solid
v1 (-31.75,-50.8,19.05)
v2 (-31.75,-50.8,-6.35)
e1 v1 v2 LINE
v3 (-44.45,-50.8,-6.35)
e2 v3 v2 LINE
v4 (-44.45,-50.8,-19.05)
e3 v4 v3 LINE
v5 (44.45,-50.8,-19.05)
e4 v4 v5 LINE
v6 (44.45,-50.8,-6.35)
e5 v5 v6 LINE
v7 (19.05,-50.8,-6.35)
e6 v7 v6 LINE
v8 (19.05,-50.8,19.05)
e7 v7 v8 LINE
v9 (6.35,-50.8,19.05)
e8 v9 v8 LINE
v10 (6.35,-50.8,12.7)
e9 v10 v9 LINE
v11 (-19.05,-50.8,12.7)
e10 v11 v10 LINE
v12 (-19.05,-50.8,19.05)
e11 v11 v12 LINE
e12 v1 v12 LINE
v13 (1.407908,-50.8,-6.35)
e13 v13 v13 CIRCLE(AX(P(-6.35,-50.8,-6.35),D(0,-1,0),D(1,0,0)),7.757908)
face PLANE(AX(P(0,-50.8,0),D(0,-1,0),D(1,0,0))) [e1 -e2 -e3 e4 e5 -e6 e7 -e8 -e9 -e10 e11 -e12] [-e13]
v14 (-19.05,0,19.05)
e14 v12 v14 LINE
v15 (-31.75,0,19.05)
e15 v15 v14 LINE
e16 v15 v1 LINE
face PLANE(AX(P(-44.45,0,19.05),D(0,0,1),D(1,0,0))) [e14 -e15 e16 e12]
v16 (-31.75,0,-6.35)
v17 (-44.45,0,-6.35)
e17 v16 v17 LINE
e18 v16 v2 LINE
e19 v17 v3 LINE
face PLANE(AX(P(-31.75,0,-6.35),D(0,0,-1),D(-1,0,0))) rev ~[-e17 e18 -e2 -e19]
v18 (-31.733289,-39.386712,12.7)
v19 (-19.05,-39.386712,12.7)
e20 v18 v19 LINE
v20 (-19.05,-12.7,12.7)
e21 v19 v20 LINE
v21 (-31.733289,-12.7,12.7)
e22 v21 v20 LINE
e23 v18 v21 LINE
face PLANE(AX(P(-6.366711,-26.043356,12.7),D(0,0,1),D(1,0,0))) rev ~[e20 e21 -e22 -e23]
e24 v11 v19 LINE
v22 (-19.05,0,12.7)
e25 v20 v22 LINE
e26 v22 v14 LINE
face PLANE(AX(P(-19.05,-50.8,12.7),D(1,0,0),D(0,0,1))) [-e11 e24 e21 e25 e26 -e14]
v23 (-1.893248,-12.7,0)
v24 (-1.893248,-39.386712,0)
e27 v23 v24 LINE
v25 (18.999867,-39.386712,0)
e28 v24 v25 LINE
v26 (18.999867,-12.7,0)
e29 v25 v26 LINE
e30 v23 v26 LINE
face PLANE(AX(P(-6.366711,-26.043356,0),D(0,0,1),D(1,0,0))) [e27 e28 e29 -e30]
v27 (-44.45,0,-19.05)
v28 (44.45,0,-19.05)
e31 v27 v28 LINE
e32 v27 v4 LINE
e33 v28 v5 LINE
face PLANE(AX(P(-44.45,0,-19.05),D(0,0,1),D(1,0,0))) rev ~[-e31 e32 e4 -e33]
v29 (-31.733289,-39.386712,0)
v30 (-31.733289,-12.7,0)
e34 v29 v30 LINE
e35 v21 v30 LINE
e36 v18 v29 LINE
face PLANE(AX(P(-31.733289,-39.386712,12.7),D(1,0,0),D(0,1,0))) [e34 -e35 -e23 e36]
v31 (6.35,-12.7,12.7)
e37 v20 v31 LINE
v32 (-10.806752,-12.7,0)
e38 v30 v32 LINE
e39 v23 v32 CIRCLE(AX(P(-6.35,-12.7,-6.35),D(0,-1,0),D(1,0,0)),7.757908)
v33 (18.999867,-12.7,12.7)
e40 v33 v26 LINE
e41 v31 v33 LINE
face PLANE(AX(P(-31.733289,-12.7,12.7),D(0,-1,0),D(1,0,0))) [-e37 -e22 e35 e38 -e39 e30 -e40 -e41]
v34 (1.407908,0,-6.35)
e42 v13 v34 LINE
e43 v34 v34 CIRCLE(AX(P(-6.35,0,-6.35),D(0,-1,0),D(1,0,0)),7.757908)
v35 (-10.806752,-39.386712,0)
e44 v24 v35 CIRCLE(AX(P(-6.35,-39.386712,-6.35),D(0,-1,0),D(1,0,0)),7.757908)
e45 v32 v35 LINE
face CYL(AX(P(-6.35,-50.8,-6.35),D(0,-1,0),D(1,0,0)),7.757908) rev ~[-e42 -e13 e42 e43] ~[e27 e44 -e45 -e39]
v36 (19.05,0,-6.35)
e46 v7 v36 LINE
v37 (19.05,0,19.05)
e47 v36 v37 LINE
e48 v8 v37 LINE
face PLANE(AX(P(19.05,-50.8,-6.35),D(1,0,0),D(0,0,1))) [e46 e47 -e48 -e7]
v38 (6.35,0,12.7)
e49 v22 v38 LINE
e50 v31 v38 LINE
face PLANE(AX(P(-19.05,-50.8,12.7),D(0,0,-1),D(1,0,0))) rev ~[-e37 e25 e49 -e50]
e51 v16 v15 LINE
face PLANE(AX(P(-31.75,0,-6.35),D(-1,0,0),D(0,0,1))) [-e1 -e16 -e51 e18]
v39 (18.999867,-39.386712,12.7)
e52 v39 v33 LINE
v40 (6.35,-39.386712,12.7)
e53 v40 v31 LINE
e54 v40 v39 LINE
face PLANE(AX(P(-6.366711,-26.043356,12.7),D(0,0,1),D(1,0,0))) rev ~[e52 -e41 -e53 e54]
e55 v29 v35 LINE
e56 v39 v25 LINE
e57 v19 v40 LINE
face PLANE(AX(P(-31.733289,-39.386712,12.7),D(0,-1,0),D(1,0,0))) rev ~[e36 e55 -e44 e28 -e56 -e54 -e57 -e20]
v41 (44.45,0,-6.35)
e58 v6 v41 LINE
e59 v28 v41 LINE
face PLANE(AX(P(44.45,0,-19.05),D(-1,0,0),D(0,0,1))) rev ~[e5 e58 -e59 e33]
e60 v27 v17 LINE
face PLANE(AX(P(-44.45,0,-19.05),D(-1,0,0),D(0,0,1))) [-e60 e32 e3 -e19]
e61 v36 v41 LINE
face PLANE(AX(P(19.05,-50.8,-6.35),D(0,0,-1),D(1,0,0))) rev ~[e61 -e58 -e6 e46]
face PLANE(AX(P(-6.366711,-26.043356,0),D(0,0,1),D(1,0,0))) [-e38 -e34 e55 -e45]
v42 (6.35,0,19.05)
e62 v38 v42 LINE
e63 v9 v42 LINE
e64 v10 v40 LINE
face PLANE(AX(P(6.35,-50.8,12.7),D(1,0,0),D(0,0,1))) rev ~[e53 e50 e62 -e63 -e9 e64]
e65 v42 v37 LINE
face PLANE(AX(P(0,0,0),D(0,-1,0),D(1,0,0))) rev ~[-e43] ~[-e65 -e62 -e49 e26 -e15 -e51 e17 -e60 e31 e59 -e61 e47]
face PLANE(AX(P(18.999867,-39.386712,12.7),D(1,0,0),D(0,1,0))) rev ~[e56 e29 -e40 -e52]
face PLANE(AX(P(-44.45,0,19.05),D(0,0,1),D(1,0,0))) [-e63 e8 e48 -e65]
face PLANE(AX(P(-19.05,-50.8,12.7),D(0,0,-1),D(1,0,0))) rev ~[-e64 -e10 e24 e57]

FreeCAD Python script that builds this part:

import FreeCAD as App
import Part
import Sketcher
Q = App.Units.Quantity

doc = App.newDocument("Part")
body = doc.addObject("PartDesign::Body", "Body")

sketch1 = body.newObject("Sketcher::SketchObject", "Sketch")
sketch1.AttachmentSupport = (doc.getObject("XZ_Plane"), [""])
sketch1.MapMode = "FlatFace"
sketch1.addGeometry([
    Part.LineSegment(App.Vector(-44.45, 19.05, 0), App.Vector(-44.45, -19.05, 0)),
    Part.LineSegment(App.Vector(-44.45, -19.05, 0), App.Vector(44.45, -19.05, 0)),
    Part.LineSegment(App.Vector(44.45, -19.05, 0), App.Vector(44.45, 19.05, 0)),
    Part.LineSegment(App.Vector(44.45, 19.05, 0), App.Vector(-44.45, 19.05, 0)),
], False)
sketch1.addConstraint([
    Sketcher.Constraint("Coincident", 0, 2, 1, 1),
    Sketcher.Constraint("Coincident", 1, 2, 2, 1),
    Sketcher.Constraint("Coincident", 2, 2, 3, 1),
    Sketcher.Constraint("Coincident", 3, 2, 0, 1),
    Sketcher.Constraint("Vertical", 0),
    Sketcher.Constraint("Horizontal", 1),
    Sketcher.Constraint("Vertical", 2),
    Sketcher.Constraint("Horizontal", 3),
    Sketcher.Constraint("Symmetric", 0, 2, 2, 2, -1, 1),
    Sketcher.Constraint("DistanceX", 1, 1, 1, 2, Q("3.5 in")),
    Sketcher.Constraint("DistanceY", 0, 2, 0, 1, Q("1.5 in")),
])
pad1 = body.newObject("PartDesign::Pad", "Pad")
pad1.Profile = sketch1
pad1.Length = Q("2 in")

sketch2 = body.newObject("Sketcher::SketchObject", "Sketch001")
sketch2.AttachmentSupport = (doc.getObject("XZ_Plane"), [""])
sketch2.MapMode = "FlatFace"
sketch2.AttachmentOffset = App.Placement(App.Vector(0, 0, 2 * 25.4), App.Rotation())
sketch2.addGeometry([
    Part.LineSegment(App.Vector(19.05, 19.05, 0), App.Vector(19.05, -6.35, 0)),
    Part.LineSegment(App.Vector(19.05, -6.35, 0), App.Vector(44.45, -6.35, 0)),
    Part.LineSegment(App.Vector(44.45, -6.35, 0), App.Vector(44.45, 19.05, 0)),
    Part.LineSegment(App.Vector(44.45, 19.05, 0), App.Vector(19.05, 19.05, 0)),
], False)
sketch2.addConstraint([
    Sketcher.Constraint("Coincident", 0, 2, 1, 1),
    Sketcher.Constraint("Coincident", 1, 2, 2, 1),
    Sketcher.Constraint("Coincident", 2, 2, 3, 1),
    Sketcher.Constraint("Coincident", 3, 2, 0, 1),
    Sketcher.Constraint("Vertical", 0),
    Sketcher.Constraint("Horizontal", 1),
    Sketcher.Constraint("Vertical", 2),
    Sketcher.Constraint("Horizontal", 3),
    Sketcher.Constraint("Equal", 3, 0),
    Sketcher.Constraint("DistanceX", 1, 1, 1, 2, Q("1 in")),
    Sketcher.Constraint("DistanceX", -1, 1, 0, 2, Q("0.75 in")),
    Sketcher.Constraint("DistanceY", 0, 2, -1, 1, Q("0.25 in")),
])
pocket1 = body.newObject("PartDesign::Pocket", "Pocket")
pocket1.Profile = sketch2
pocket1.Type = "ThroughAll"

sketch3 = body.newObject("Sketcher::SketchObject", "Sketch002")
sketch3.AttachmentSupport = (doc.getObject("XZ_Plane"), [""])
sketch3.MapMode = "FlatFace"
sketch3.addGeometry([
    Part.LineSegment(App.Vector(-31.75, 19.05, 0), App.Vector(-31.75, -6.35, 0)),
    Part.LineSegment(App.Vector(-31.75, -6.35, 0), App.Vector(-44.45, -6.35, 0)),
    Part.LineSegment(App.Vector(-44.45, -6.35, 0), App.Vector(-44.45, 19.05, 0)),
    Part.LineSegment(App.Vector(-44.45, 19.05, 0), App.Vector(-31.75, 19.05, 0)),
], False)
sketch3.addConstraint([
    Sketcher.Constraint("Coincident", 0, 2, 1, 1),
    Sketcher.Constraint("Coincident", 1, 2, 2, 1),
    Sketcher.Constraint("Coincident", 2, 2, 3, 1),
    Sketcher.Constraint("Coincident", 3, 2, 0, 1),
    Sketcher.Constraint("Vertical", 0),
    Sketcher.Constraint("Horizontal", 1),
    Sketcher.Constraint("Vertical", 2),
    Sketcher.Constraint("Horizontal", 3),
    Sketcher.Constraint("DistanceY", 0, 2, 0, 1, Q("1 in")),
    Sketcher.Constraint("DistanceX", 1, 2, 1, 1, Q("0.5 in")),
    Sketcher.Constraint("DistanceX", 0, 2, -1, 1, Q("1.25 in")),
    Sketcher.Constraint("DistanceY", 0, 2, -1, 1, Q("0.25 in")),
])
pocket2 = body.newObject("PartDesign::Pocket", "Pocket001")
pocket2.Profile = sketch3
pocket2.Type = "ThroughAll"
pocket2.Reversed = True

sketch4 = body.newObject("Sketcher::SketchObject", "Sketch003")
sketch4.AttachmentSupport = (doc.getObject("XZ_Plane"), [""])
sketch4.MapMode = "FlatFace"
sketch4.AttachmentOffset = App.Placement(App.Vector(0, 0, 2 * 25.4), App.Rotation())
sketch4.addGeometry([
    Part.LineSegment(App.Vector(-19.05, 19.05, 0), App.Vector(-19.05, 12.7, 0)),
    Part.LineSegment(App.Vector(-19.05, 12.7, 0), App.Vector(6.35, 12.7, 0)),
    Part.LineSegment(App.Vector(6.35, 12.7, 0), App.Vector(6.35, 19.05, 0)),
    Part.LineSegment(App.Vector(6.35, 19.05, 0), App.Vector(-19.05, 19.05, 0)),
], False)
sketch4.addConstraint([
    Sketcher.Constraint("Coincident", 0, 2, 1, 1),
    Sketcher.Constraint("Coincident", 1, 2, 2, 1),
    Sketcher.Constraint("Coincident", 2, 2, 3, 1),
    Sketcher.Constraint("Coincident", 3, 2, 0, 1),
    Sketcher.Constraint("Vertical", 0),
    Sketcher.Constraint("Horizontal", 1),
    Sketcher.Constraint("Vertical", 2),
    Sketcher.Constraint("Horizontal", 3),
    Sketcher.Constraint("DistanceX", 1, 1, 1, 2, Q("1 in")),
    Sketcher.Constraint("DistanceY", 0, 2, 0, 1, Q("0.25 in")),
    Sketcher.Constraint("DistanceY", -1, 1, 0, 2, Q("0.5 in")),
    Sketcher.Constraint("DistanceX", 0, 2, -1, 1, Q("0.75 in")),
])
pocket3 = body.newObject("PartDesign::Pocket", "Pocket002")
pocket3.Profile = sketch4
pocket3.Type = "ThroughAll"

sketch5 = body.newObject("Sketcher::SketchObject", "Sketch004")
sketch5.AttachmentSupport = (doc.getObject("XY_Plane"), [""])
sketch5.MapMode = "FlatFace"
sketch5.AttachmentOffset = App.Placement(App.Vector(0, 0, 0.5 * 25.4), App.Rotation())
sketch5.addGeometry([
    Part.LineSegment(App.Vector(-31.733289, -12.7, 0), App.Vector(-31.733289, -39.386712, 0)),
    Part.LineSegment(App.Vector(-31.733289, -39.386712, 0), App.Vector(18.999867, -39.386712, 0)),
    Part.LineSegment(App.Vector(18.999867, -39.386712, 0), App.Vector(18.999867, -12.7, 0)),
    Part.LineSegment(App.Vector(18.999867, -12.7, 0), App.Vector(-31.733289, -12.7, 0)),
], False)
sketch5.addConstraint([
    Sketcher.Constraint("Coincident", 0, 2, 1, 1),
    Sketcher.Constraint("Coincident", 1, 2, 2, 1),
    Sketcher.Constraint("Coincident", 2, 2, 3, 1),
    Sketcher.Constraint("Coincident", 3, 2, 0, 1),
    Sketcher.Constraint("Vertical", 0),
    Sketcher.Constraint("Horizontal", 1),
    Sketcher.Constraint("Vertical", 2),
    Sketcher.Constraint("Horizontal", 3),
    Sketcher.Constraint("DistanceY", 2, 2, -1, 1, Q("0.5 in")),
    Sketcher.Constraint("DistanceX", 1, 1, 1, 2, Q("50.733156 mm")),
    Sketcher.Constraint("DistanceY", 0, 2, 0, 1, Q("26.686712 mm")),
    Sketcher.Constraint("DistanceX", 0, 2, -1, 1, Q("31.733289 mm")),
])
pocket4 = body.newObject("PartDesign::Pocket", "Pocket003")
pocket4.Profile = sketch5
pocket4.Length = Q("0.5 in")

sketch6 = body.newObject("Sketcher::SketchObject", "Sketch005")
sketch6.AttachmentSupport = (doc.getObject("XZ_Plane"), [""])
sketch6.MapMode = "FlatFace"
sketch6.AttachmentOffset = App.Placement(App.Vector(0, 0, 2 * 25.4), App.Rotation())
sketch6.addGeometry(Part.Circle(App.Vector(-6.35, -6.35, 0), App.Vector(0, 0, 1), 7.757908), False)
sketch6.addConstraint([
    Sketcher.Constraint("DistanceX", 0, 3, -1, 1, Q("0.25 in")),
    Sketcher.Constraint("DistanceY", 0, 3, -1, 1, Q("0.25 in")),
    Sketcher.Constraint("Diameter", 0, Q("15.515816 mm")),
])
pocket5 = body.newObject("PartDesign::Pocket", "Pocket004")
pocket5.Profile = sketch6
pocket5.Type = "ThroughAll"

doc.recompute()
